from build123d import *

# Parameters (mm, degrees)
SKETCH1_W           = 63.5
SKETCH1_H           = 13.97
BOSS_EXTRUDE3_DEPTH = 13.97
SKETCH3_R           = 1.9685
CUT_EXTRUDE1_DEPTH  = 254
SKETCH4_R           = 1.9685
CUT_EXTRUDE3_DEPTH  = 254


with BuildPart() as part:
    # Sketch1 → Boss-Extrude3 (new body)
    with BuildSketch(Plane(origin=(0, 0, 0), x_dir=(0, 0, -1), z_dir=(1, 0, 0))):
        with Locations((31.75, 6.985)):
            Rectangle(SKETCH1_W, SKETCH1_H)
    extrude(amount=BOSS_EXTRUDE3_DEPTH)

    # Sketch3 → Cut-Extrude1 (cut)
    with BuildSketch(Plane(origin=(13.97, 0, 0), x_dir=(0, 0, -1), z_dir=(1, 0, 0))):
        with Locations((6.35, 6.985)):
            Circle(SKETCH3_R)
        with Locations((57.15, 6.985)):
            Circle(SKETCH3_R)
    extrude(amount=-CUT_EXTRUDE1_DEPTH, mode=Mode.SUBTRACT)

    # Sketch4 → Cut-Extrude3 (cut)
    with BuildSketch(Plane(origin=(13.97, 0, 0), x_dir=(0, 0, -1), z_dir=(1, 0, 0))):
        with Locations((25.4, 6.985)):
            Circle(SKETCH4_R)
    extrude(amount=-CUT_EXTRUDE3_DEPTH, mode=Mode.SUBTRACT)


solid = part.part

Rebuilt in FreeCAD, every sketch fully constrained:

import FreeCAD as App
import Part
import Sketcher

V = App.Vector
Q = App.Units.Quantity

doc = App.newDocument("Part")
body = doc.addObject("PartDesign::Body", "Body")

sketch1 = body.newObject("Sketcher::SketchObject", "Sketch")
sketch1.AttachmentSupport = (doc.getObject("YZ_Plane"), [""])
sketch1.MapMode = "FlatFace"
sketch1.addGeometry(Part.LineSegment(V(14, 0, 0), V(0, 0, 0)), False)
sketch1.addGeometry(Part.LineSegment(V(0, 0, 0), V(0, -64, 0)), False)
sketch1.addGeometry(Part.LineSegment(V(0, -64, 0), V(14, -64, 0)), False)
sketch1.addGeometry(Part.LineSegment(V(14, -64, 0), V(14, 0, 0)), False)
sketch1.addConstraint(Sketcher.Constraint("Coincident", 0, 2, 1, 1))
sketch1.addConstraint(Sketcher.Constraint("Coincident", 1, 2, 2, 1))
sketch1.addConstraint(Sketcher.Constraint("Coincident", 2, 2, 3, 1))
sketch1.addConstraint(Sketcher.Constraint("Coincident", 3, 2, 0, 1))
sketch1.addConstraint(Sketcher.Constraint("Horizontal", 0))
sketch1.addConstraint(Sketcher.Constraint("Vertical", 1))
sketch1.addConstraint(Sketcher.Constraint("Horizontal", 2))
sketch1.addConstraint(Sketcher.Constraint("Vertical", 3))
sketch1.addConstraint(Sketcher.Constraint("Coincident", 0, 2, -1, 1))
sketch1.addConstraint(Sketcher.Constraint("DistanceY", 1, 2, 1, 1, Q("2.5 in")))
sketch1.addConstraint(Sketcher.Constraint("DistanceX", 0, 2, 0, 1, Q("0.55 in")))
pad1 = body.newObject("PartDesign::Pad", "Pad")
pad1.Profile = sketch1
pad1.Length = Q("0.55 in")

sketch2 = body.newObject("Sketcher::SketchObject", "Sketch001")
sketch2.AttachmentSupport = (doc.getObject("YZ_Plane"), [""])
sketch2.MapMode = "FlatFace"
sketch2.AttachmentOffset = App.Placement(V(0, 0, 0.55 * 25.4), App.Rotation())
sketch2.addGeometry(Part.Circle(V(7, -6.3, 0), V(0, 0, 1), 2), False)
sketch2.addGeometry(Part.Circle(V(7, -57.1, 0), V(0, 0, 1), 2), False)
sketch2.addConstraint(Sketcher.Constraint("Equal", 0, 1))
sketch2.addConstraint(Sketcher.Constraint("Vertical", 0, 3, 1, 3))
sketch2.addConstraint(Sketcher.Constraint("Diameter", 0, Q("0.155 in")))
sketch2.addConstraint(Sketcher.Constraint("DistanceY", 1, 3, 0, 3, Q("2 in")))
sketch2.addConstraint(Sketcher.Constraint("DistanceY", 0, 3, -1, 1, Q("0.25 in")))
sketch2.addConstraint(Sketcher.Constraint("DistanceX", -1, 1, 0, 3, Q("0.275 in")))
pocket1 = body.newObject("PartDesign::Pocket", "Pocket")
pocket1.Profile = sketch2
pocket1.Length = Q("10 in")

sketch3 = body.newObject("Sketcher::SketchObject", "Sketch002")
sketch3.AttachmentSupport = (doc.getObject("YZ_Plane"), [""])
sketch3.MapMode = "FlatFace"
sketch3.AttachmentOffset = App.Placement(V(0, 0, 0.55 * 25.4), App.Rotation())
sketch3.addGeometry(Part.Circle(V(7, -25.4, 0), V(0, 0, 1), 2), False)
sketch3.addConstraint(Sketcher.Constraint("Diameter", 0, Q("0.155 in")))
sketch3.addConstraint(Sketcher.Constraint("DistanceY", 0, 3, -1, 1, Q("1 in")))
sketch3.addConstraint(Sketcher.Constraint("DistanceX", -1, 1, 0, 3, Q("0.275 in")))
pocket2 = body.newObject("PartDesign::Pocket", "Pocket001")
pocket2.Profile = sketch3
pocket2.Length = Q("10 in")

doc.recompute()
